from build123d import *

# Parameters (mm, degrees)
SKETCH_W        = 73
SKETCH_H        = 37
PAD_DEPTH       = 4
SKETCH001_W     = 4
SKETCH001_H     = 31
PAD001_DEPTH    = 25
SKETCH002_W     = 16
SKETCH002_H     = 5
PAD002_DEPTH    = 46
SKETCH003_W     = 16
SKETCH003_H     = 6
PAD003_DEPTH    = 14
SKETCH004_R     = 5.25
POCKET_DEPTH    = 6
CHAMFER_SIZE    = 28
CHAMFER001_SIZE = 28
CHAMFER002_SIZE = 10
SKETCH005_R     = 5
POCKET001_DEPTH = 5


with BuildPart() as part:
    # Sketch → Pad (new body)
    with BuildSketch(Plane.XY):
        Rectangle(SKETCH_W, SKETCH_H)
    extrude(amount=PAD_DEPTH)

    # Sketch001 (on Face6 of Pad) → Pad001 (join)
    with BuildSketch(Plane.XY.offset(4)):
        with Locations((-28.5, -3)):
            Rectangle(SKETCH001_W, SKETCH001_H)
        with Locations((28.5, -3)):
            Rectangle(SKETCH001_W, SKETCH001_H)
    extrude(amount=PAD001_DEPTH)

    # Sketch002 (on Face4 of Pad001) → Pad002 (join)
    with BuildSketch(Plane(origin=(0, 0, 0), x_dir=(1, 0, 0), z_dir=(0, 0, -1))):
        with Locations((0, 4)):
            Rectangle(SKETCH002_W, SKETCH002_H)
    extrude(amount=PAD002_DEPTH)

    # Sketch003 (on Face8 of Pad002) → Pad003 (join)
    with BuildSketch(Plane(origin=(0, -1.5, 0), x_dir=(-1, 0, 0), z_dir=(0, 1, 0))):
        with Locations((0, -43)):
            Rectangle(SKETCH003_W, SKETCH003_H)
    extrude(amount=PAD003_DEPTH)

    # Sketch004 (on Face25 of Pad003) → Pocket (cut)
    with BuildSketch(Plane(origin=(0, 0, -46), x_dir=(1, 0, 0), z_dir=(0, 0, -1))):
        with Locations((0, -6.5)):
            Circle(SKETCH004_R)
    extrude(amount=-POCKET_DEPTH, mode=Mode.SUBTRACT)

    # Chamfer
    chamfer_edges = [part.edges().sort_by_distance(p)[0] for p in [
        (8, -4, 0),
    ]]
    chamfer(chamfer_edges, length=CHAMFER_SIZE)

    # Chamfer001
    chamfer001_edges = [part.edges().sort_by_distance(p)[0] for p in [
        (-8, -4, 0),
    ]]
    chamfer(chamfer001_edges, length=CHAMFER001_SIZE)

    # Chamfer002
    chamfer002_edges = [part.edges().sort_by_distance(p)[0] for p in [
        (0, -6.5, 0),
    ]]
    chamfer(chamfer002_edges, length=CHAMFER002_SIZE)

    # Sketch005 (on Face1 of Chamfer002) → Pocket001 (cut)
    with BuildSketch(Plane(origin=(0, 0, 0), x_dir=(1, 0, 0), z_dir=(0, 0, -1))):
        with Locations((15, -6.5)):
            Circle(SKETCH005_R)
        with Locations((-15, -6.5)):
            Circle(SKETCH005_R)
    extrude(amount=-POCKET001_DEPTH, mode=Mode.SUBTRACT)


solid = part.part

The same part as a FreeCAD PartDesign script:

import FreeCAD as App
import Part
import Sketcher
Q = App.Units.Quantity


def edges_at(feature, points):
    """Names of the edges that pass closest to the given points."""
    edges = feature.Shape.Edges
    near = lambda p: min(range(len(edges)), key=lambda i: edges[i].distToShape(Part.Vertex(*p))[0])
    return sorted({f"Edge{near(p) + 1}" for p in points})


def add_polygon(sketch, points):
    """Adds a closed chain of lines whose ends are joined by coincident constraints."""
    first, n = sketch.GeometryCount, len(points)
    for a, b in zip(points, points[1:] + points[:1]):
        sketch.addGeometry(Part.LineSegment(App.Vector(*a, 0), App.Vector(*b, 0)), False)
    for i in range(n):
        sketch.addConstraint(Sketcher.Constraint("Coincident", first + i, 2, first + (i + 1) % n, 1))

doc = App.newDocument("Part")
params = doc.addObject("Spreadsheet::Sheet", "Params")
for row, (alias, value) in enumerate([
    ("sketch1_width", "73 mm"),
    ("sketch1_height", "37 mm"),
    ("pad1_length", "4 mm"),
    ("sketch2_width", "4 mm"),
    ("sketch2_height", "31 mm"),
    ("pad2_length", "25 mm"),
    ("sketch3_width", "16 mm"),
    ("sketch3_height", "5 mm"),
    ("pad3_length", "46 mm"),
    ("sketch4_width", "16 mm"),
    ("sketch4_height", "6 mm"),
    ("pad4_length", "14 mm"),
    ("sketch5_diameter", "10.5 mm"),
    ("pocket1_length", "6 mm"),
    ("chamfer_size", "28 mm"),
    ("chamfer2_size", "28 mm"),
    ("chamfer3_size", "10 mm"),
    ("sketch6_diameter", "10 mm"),
    ("pocket2_length", "5 mm"),
], start=1):
    params.set(f"A{row}", alias)
    params.set(f"B{row}", "=" + value)
    params.setAlias(f"B{row}", alias)

body = doc.addObject("PartDesign::Body", "Body")

sketch1 = doc.addObject("Sketcher::SketchObject", "Sketch")
body.addObject(sketch1)
sketch1.AttachmentSupport = (doc.XY_Plane, [""])
sketch1.MapMode = "FlatFace"
add_polygon(sketch1, [(-36, 18), (-36, -18), (36, -18), (36, 18)])
sketch1.addConstraint(Sketcher.Constraint("Vertical", 0))
sketch1.addConstraint(Sketcher.Constraint("Horizontal", 1))
sketch1.addConstraint(Sketcher.Constraint("Vertical", 2))
sketch1.addConstraint(Sketcher.Constraint("Horizontal", 3))
sketch1.addConstraint(Sketcher.Constraint("Symmetric", 0, 2, 2, 2, -1, 1))
sketch1.addConstraint(Sketcher.Constraint("DistanceX", 1, 1, 1, 2, Q("73 mm")))
sketch1.addConstraint(Sketcher.Constraint("DistanceY", 0, 2, 0, 1, Q("37 mm")))
sketch1.setExpression("Constraints[9]", "Params.sketch1_width")
sketch1.setExpression("Constraints[10]", "Params.sketch1_height")
pad1 = doc.addObject("PartDesign::Pad", "Pad")
body.addObject(pad1)
pad1.Profile = sketch1
pad1.setExpression("Length", "Params.pad1_length")

sketch2 = doc.addObject("Sketcher::SketchObject", "Sketch001")
body.addObject(sketch2)
sketch2.AttachmentSupport = (doc.XY_Plane, [""])
sketch2.MapMode = "FlatFace"
sketch2.AttachmentOffset = App.Placement(App.Vector(0, 0, 4), App.Rotation())
add_polygon(sketch2, [(-30.5, 12.5), (-30.5, -18.5), (-26.5, -18.5), (-26.5, 12.5)])
add_polygon(sketch2, [(26.5, 12.5), (26.5, -18.5), (30.5, -18.5), (30.5, 12.5)])
sketch2.addConstraint(Sketcher.Constraint("Vertical", 0))
sketch2.addConstraint(Sketcher.Constraint("Horizontal", 1))
sketch2.addConstraint(Sketcher.Constraint("Vertical", 2))
sketch2.addConstraint(Sketcher.Constraint("Horizontal", 3))
sketch2.addConstraint(Sketcher.Constraint("Vertical", 4))
sketch2.addConstraint(Sketcher.Constraint("Horizontal", 5))
sketch2.addConstraint(Sketcher.Constraint("Vertical", 6))
sketch2.addConstraint(Sketcher.Constraint("Horizontal", 7))
sketch2.addConstraint(Sketcher.Constraint("Symmetric", 1, 2, 4, 2, -2))
sketch2.addConstraint(Sketcher.Constraint("Symmetric", 3, 2, 6, 2, -2))
sketch2.addConstraint(Sketcher.Constraint("DistanceX", 1, 1, 1, 2, Q("4 mm")))
sketch2.addConstraint(Sketcher.Constraint("DistanceY", 0, 2, 0, 1, Q("31 mm")))
sketch2.addConstraint(Sketcher.Constraint("DistanceX", 1, 2, 4, 2, Q("53 mm")))
sketch2.addConstraint(Sketcher.Constraint("DistanceY", 0, 2, -1, 1, Q("18.5 mm")))
sketch2.setExpression("Constraints[18]", "Params.sketch2_width")
sketch2.setExpression("Constraints[19]", "Params.sketch2_height")
pad2 = doc.addObject("PartDesign::Pad", "Pad001")
body.addObject(pad2)
pad2.Profile = sketch2
pad2.setExpression("Length", "Params.pad2_length")

sketch3 = doc.addObject("Sketcher::SketchObject", "Sketch002")
body.addObject(sketch3)
sketch3.AttachmentSupport = (doc.XY_Plane, [""])
sketch3.MapMode = "FlatFace"
add_polygon(sketch3, [(-8, -6), (-8, -2), (8, -2), (8, -6)])
sketch3.addConstraint(Sketcher.Constraint("Vertical", 0))
sketch3.addConstraint(Sketcher.Constraint("Horizontal", 1))
sketch3.addConstraint(Sketcher.Constraint("Vertical", 2))
sketch3.addConstraint(Sketcher.Constraint("Horizontal", 3))
sketch3.addConstraint(Sketcher.Constraint("DistanceX", 1, 1, 1, 2, Q("16 mm")))
sketch3.addConstraint(Sketcher.Constraint("DistanceY", 0, 1, 0, 2, Q("5 mm")))
sketch3.addConstraint(Sketcher.Constraint("DistanceX", 0, 2, -1, 1, Q("8 mm")))
sketch3.addConstraint(Sketcher.Constraint("DistanceY", 0, 2, -1, 1, Q("1.5 mm")))
sketch3.setExpression("Constraints[8]", "Params.sketch3_width")
sketch3.setExpression("Constraints[9]", "Params.sketch3_height")
pad3 = doc.addObject("PartDesign::Pad", "Pad002")
body.addObject(pad3)
pad3.Profile = sketch3
pad3.setExpression("Length", "Params.pad3_length")
pad3.Reversed = True

sketch4 = doc.addObject("Sketcher::SketchObject", "Sketch003")
body.addObject(sketch4)
sketch4.AttachmentSupport = (doc.XZ_Plane, [""])
sketch4.MapMode = "FlatFace"
sketch4.AttachmentOffset = App.Placement(App.Vector(0, 0, 1.5), App.Rotation())
add_polygon(sketch4, [(8, -40), (8, -46), (-8, -46), (-8, -40)])
sketch4.addConstraint(Sketcher.Constraint("Vertical", 0))
sketch4.addConstraint(Sketcher.Constraint("Horizontal", 1))
sketch4.addConstraint(Sketcher.Constraint("Vertical", 2))
sketch4.addConstraint(Sketcher.Constraint("Horizontal", 3))
sketch4.addConstraint(Sketcher.Constraint("DistanceX", 1, 2, 1, 1, Q("16 mm")))
sketch4.addConstraint(Sketcher.Constraint("DistanceY", 0, 2, 0, 1, Q("6 mm")))
sketch4.addConstraint(Sketcher.Constraint("DistanceX", -1, 1, 0, 2, Q("8 mm")))
sketch4.addConstraint(Sketcher.Constraint("DistanceY", 0, 2, -1, 1, Q("46 mm")))
sketch4.setExpression("Constraints[8]", "Params.sketch4_width")
sketch4.setExpression("Constraints[9]", "Params.sketch4_height")
pad4 = doc.addObject("PartDesign::Pad", "Pad003")
body.addObject(pad4)
pad4.Profile = sketch4
pad4.setExpression("Length", "Params.pad4_length")
pad4.Reversed = True

sketch5 = doc.addObject("Sketcher::SketchObject", "Sketch004")
body.addObject(sketch5)
sketch5.AttachmentSupport = (doc.XY_Plane, [""])
sketch5.MapMode = "FlatFace"
sketch5.AttachmentOffset = App.Placement(App.Vector(0, 0, -46), App.Rotation())
sketch5.addGeometry(Part.Circle(App.Vector(0, 6, 0), App.Vector(0, 0, 1), 5), False)
sketch5.addConstraint(Sketcher.Constraint("PointOnObject", 0, 3, -2))
sketch5.addConstraint(Sketcher.Constraint("Diameter", 0, Q("10.5 mm")))
sketch5.addConstraint(Sketcher.Constraint("DistanceY", -1, 1, 0, 3, Q("6.5 mm")))
sketch5.setExpression("Constraints[1]", "Params.sketch5_diameter")
pocket1 = doc.addObject("PartDesign::Pocket", "Pocket")
body.addObject(pocket1)
pocket1.Profile = sketch5
pocket1.setExpression("Length", "Params.pocket1_length")
pocket1.Reversed = True
doc.recompute()

chamfer = doc.addObject("PartDesign::Chamfer", "Chamfer")
body.addObject(chamfer)
chamfer.Base = (pocket1, edges_at(pocket1, [(8, -4, 0)]))
chamfer.setExpression("Size", "Params.chamfer_size")
doc.recompute()

chamfer2 = doc.addObject("PartDesign::Chamfer", "Chamfer001")
body.addObject(chamfer2)
chamfer2.Base = (chamfer, edges_at(chamfer, [(-8, -4, 0)]))
chamfer2.setExpression("Size", "Params.chamfer2_size")
doc.recompute()

chamfer3 = doc.addObject("PartDesign::Chamfer", "Chamfer002")
body.addObject(chamfer3)
chamfer3.Base = (chamfer2, edges_at(chamfer2, [(0, -6.5, 0)]))
chamfer3.setExpression("Size", "Params.chamfer3_size")

sketch6 = doc.addObject("Sketcher::SketchObject", "Sketch005")
body.addObject(sketch6)
sketch6.AttachmentSupport = (doc.XY_Plane, [""])
sketch6.MapMode = "FlatFace"
sketch6.addGeometry(Part.Circle(App.Vector(15, 6, 0), App.Vector(0, 0, 1), 5), False)
sketch6.addGeometry(Part.Circle(App.Vector(-15, 6, 0), App.Vector(0, 0, 1), 5), False)
sketch6.addConstraint(Sketcher.Constraint("Equal", 0, 1))
sketch6.addConstraint(Sketcher.Constraint("Symmetric", 0, 3, 1, 3, -2))
sketch6.addConstraint(Sketcher.Constraint("Diameter", 0, Q("10 mm")))
sketch6.addConstraint(Sketcher.Constraint("DistanceX", -1, 1, 0, 3, Q("15 mm")))
sketch6.addConstraint(Sketcher.Constraint("DistanceY", -1, 1, 0, 3, Q("6.5 mm")))
sketch6.setExpression("Constraints[2]", "Params.sketch6_diameter")
pocket2 = doc.addObject("PartDesign::Pocket", "Pocket001")
body.addObject(pocket2)
pocket2.Profile = sketch6
pocket2.setExpression("Length", "Params.pocket2_length")
pocket2.Reversed = True

doc.recompute()
